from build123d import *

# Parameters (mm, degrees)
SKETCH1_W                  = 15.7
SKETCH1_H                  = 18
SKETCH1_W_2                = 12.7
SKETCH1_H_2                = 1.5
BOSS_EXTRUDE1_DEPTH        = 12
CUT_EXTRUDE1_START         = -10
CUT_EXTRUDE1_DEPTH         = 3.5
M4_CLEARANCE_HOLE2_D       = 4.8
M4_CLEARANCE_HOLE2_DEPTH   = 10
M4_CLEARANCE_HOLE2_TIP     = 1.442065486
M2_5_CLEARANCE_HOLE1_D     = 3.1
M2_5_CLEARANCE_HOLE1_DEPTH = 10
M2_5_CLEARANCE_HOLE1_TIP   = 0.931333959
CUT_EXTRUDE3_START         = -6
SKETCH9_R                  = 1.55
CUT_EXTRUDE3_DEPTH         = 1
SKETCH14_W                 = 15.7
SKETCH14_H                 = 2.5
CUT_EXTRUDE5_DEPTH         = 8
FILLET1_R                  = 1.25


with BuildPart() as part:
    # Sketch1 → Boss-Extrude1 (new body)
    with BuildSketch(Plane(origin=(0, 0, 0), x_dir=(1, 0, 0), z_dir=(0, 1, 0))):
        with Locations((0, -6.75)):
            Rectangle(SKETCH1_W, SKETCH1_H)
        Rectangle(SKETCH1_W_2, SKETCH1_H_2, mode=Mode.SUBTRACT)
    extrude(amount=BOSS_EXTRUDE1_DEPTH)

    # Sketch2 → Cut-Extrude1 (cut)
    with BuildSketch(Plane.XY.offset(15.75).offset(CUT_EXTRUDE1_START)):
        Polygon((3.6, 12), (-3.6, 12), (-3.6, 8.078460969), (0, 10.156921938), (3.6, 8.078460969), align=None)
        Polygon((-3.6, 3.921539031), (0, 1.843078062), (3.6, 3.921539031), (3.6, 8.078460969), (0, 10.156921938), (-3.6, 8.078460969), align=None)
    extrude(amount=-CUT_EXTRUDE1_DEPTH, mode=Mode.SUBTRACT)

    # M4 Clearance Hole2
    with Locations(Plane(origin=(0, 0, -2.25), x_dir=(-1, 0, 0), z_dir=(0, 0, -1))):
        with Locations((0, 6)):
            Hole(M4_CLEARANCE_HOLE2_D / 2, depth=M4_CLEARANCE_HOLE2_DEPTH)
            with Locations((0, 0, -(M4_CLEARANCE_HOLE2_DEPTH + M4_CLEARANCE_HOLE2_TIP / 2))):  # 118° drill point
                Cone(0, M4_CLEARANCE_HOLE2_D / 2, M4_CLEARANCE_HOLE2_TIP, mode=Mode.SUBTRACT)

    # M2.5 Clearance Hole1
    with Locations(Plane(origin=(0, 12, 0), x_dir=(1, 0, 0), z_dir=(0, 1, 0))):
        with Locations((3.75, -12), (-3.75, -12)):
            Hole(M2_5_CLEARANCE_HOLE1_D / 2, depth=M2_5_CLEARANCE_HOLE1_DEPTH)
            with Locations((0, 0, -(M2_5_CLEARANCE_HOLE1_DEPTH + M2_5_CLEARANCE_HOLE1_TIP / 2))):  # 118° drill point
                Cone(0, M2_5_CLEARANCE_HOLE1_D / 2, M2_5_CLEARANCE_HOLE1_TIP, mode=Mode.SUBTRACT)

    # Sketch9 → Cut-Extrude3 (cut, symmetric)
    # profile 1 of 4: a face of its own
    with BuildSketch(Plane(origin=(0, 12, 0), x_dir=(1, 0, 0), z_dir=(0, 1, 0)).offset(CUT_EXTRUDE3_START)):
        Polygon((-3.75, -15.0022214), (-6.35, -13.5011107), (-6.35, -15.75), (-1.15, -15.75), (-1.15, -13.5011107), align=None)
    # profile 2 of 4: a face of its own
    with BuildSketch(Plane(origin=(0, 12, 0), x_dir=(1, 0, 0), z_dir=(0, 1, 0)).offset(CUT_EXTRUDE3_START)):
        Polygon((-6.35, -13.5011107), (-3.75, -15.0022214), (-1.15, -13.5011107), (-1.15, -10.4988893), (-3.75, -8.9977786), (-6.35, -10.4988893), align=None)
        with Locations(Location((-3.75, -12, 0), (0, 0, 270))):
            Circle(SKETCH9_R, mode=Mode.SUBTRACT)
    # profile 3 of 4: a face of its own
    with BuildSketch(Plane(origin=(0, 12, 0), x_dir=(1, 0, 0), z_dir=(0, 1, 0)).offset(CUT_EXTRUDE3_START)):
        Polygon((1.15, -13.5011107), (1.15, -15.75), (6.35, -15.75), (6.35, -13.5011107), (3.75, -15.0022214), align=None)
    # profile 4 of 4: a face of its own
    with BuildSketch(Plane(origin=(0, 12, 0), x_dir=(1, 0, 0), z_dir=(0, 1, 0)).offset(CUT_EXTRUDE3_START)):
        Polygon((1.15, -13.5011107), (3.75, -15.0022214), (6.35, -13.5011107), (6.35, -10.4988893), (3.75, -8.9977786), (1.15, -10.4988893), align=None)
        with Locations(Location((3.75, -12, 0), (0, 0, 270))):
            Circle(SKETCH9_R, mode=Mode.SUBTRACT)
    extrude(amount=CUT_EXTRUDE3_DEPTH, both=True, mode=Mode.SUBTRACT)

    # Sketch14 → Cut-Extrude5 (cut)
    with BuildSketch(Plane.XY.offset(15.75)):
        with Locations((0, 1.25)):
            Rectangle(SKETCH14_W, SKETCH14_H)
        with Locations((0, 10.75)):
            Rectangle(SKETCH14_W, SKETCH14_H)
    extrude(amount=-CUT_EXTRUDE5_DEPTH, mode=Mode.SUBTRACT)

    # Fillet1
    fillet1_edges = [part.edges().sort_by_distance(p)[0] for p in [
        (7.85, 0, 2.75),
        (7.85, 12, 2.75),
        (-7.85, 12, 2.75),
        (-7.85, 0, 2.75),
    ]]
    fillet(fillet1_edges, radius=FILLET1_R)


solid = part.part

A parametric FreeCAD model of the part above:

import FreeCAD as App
import Part
import Sketcher
Q = App.Units.Quantity


def edges_at(feature, points):
    """Names of the edges that pass closest to the given points."""
    edges = feature.Shape.Edges
    near = lambda p: min(range(len(edges)), key=lambda i: edges[i].distToShape(Part.Vertex(*p))[0])
    return sorted({f"Edge{near(p) + 1}" for p in points})


def add_polygon(sketch, points):
    """Adds a closed chain of lines whose ends are joined by coincident constraints."""
    first, n = sketch.GeometryCount, len(points)
    for a, b in zip(points, points[1:] + points[:1]):
        sketch.addGeometry(Part.LineSegment(App.Vector(*a, 0), App.Vector(*b, 0)), False)
    for i in range(n):
        sketch.addConstraint(Sketcher.Constraint("Coincident", first + i, 2, first + (i + 1) % n, 1))

doc = App.newDocument("Part")
params = doc.addObject("Spreadsheet::Sheet", "Params")
for row, (alias, value) in enumerate([
    ("sketch1_height", "18 mm"),
    ("sketch1_width", "15.7 mm"),
    ("sketch1_width2", "12.7 mm"),
    ("sketch1_height2", "1.5 mm"),
    ("pad1_length", "12 mm"),
    ("sketch2_width", "7.2 mm"),
    ("pocket1_length", "3.5 mm"),
    ("sketch3_diameter", "4.8 mm"),
    ("hole_diameter", "4.8 mm"),
    ("hole_depth", "10 mm"),
    ("sketch4_diameter", "3.1 mm"),
    ("hole2_diameter", "3.1 mm"),
    ("hole2_depth", "10 mm"),
    ("sketch5_diameter", "3.1 mm"),
    ("sketch5_width", "5.2 mm"),
    ("pocket2_length", "2 mm"),
    ("sketch6_width", "15.7 mm"),
    ("sketch6_height", "2.5 mm"),
    ("pocket3_length", "8 mm"),
    ("fillet_radius", "1.25 mm"),
], start=1):
    params.set(f"A{row}", alias)
    params.set(f"B{row}", "=" + value)
    params.setAlias(f"B{row}", alias)

body = doc.addObject("PartDesign::Body", "Body")

sketch1 = body.newObject("Sketcher::SketchObject", "Sketch")
sketch1.AttachmentSupport = (doc.getObject("XZ_Plane"), [""])
sketch1.MapMode = "FlatFace"
add_polygon(sketch1, [(-7.8, -2.2), (-7.8, 15.8), (7.8, 15.8), (7.8, -2.2)])
add_polygon(sketch1, [(6.3, 0.8), (-6.3, 0.8), (-6.3, -0.8), (6.3, -0.8)])
sketch1.addConstraint(Sketcher.Constraint("Vertical", 0))
sketch1.addConstraint(Sketcher.Constraint("Horizontal", 1))
sketch1.addConstraint(Sketcher.Constraint("Vertical", 2))
sketch1.addConstraint(Sketcher.Constraint("Horizontal", 3))
sketch1.addConstraint(Sketcher.Constraint("Horizontal", 4))
sketch1.addConstraint(Sketcher.Constraint("Vertical", 5))
sketch1.addConstraint(Sketcher.Constraint("Horizontal", 6))
sketch1.addConstraint(Sketcher.Constraint("Vertical", 7))
sketch1.addConstraint(Sketcher.Constraint("Symmetric", 4, 2, 6, 2, -1, 1))
sketch1.addConstraint(Sketcher.Constraint("DistanceY", 0, 1, 0, 2, Q("18 mm")))
sketch1.addConstraint(Sketcher.Constraint("DistanceX", 1, 1, 1, 2, Q("15.7 mm")))
sketch1.addConstraint(Sketcher.Constraint("DistanceX", 4, 2, 4, 1, Q("12.7 mm")))
sketch1.addConstraint(Sketcher.Constraint("DistanceY", 5, 2, 5, 1, Q("1.5 mm")))
sketch1.addConstraint(Sketcher.Constraint("DistanceY", 3, 2, 4, 2, Q("3 mm")))
sketch1.addConstraint(Sketcher.Constraint("DistanceX", 3, 2, 4, 2, Q("1.5 mm")))
sketch1.setExpression("Constraints[17]", "Params.sketch1_height")
sketch1.setExpression("Constraints[18]", "Params.sketch1_width")
sketch1.setExpression("Constraints[19]", "Params.sketch1_width2")
sketch1.setExpression("Constraints[20]", "Params.sketch1_height2")
pad1 = body.newObject("PartDesign::Pad", "Pad")
pad1.Profile = sketch1
pad1.setExpression("Length", "Params.pad1_length")
pad1.Reversed = True

sketch2 = body.newObject("Sketcher::SketchObject", "Sketch001")
sketch2.AttachmentSupport = (doc.getObject("XY_Plane"), [""])
sketch2.MapMode = "FlatFace"
sketch2.AttachmentOffset = App.Placement(App.Vector(0, 0, 5.75), App.Rotation())
add_polygon(sketch2, [(3.6, 12), (-3.6, 12), (-3.6, 3.9), (0, 1.8), (3.6, 3.9)])
sketch2.addConstraint(Sketcher.Constraint("Horizontal", 0))
sketch2.addConstraint(Sketcher.Constraint("Vertical", 1))
sketch2.addConstraint(Sketcher.Constraint("Vertical", 4))
sketch2.addConstraint(Sketcher.Constraint("Symmetric", 1, 2, 3, 2, -2))
sketch2.addConstraint(Sketcher.Constraint("PointOnObject", 2, 2, -2))
sketch2.addConstraint(Sketcher.Constraint("Angle", 2, Q("-30 deg")))
sketch2.addConstraint(Sketcher.Constraint("DistanceX", 0, 2, 0, 1, Q("7.2 mm")))
sketch2.addConstraint(Sketcher.Constraint("DistanceY", -1, 1, 0, 2, Q("12 mm")))
sketch2.addConstraint(Sketcher.Constraint("DistanceY", 1, 2, 1, 1, Q("8.078461 mm")))
sketch2.setExpression("Constraints[11]", "Params.sketch2_width")
pocket1 = body.newObject("PartDesign::Pocket", "Pocket")
pocket1.Profile = sketch2
pocket1.setExpression("Length", "Params.pocket1_length")

sketch3 = body.newObject("Sketcher::SketchObject", "Sketch002")
sketch3.AttachmentSupport = (doc.getObject("XY_Plane"), [""])
sketch3.MapMode = "FlatFace"
sketch3.AttachmentOffset = App.Placement(App.Vector(0, 0, -2.25), App.Rotation())
sketch3.addGeometry(Part.Circle(App.Vector(0, 6, 0), App.Vector(0, 0, 1), 2.4), False)
sketch3.addConstraint(Sketcher.Constraint("PointOnObject", 0, 3, -2))
sketch3.addConstraint(Sketcher.Constraint("Diameter", 0, Q("4.8 mm")))
sketch3.addConstraint(Sketcher.Constraint("DistanceY", -1, 1, 0, 3, Q("6 mm")))
sketch3.setExpression("Constraints[1]", "Params.sketch3_diameter")
doc.recompute()
hole = body.newObject("PartDesign::Hole", "Hole")
hole.Profile = sketch3
hole.ThreadType = "None"
hole.setExpression("Diameter", "Params.hole_diameter")
hole.DepthType = "Dimension"
hole.setExpression("Depth", "Params.hole_depth")
hole.DrillPoint = "Angled"
hole.DrillPointAngle = 118
hole.Reversed = True

sketch4 = body.newObject("Sketcher::SketchObject", "Sketch003")
sketch4.AttachmentSupport = (doc.getObject("XZ_Plane"), [""])
sketch4.MapMode = "FlatFace"
sketch4.AttachmentOffset = App.Placement(App.Vector(0, 0, -12), App.Rotation())
sketch4.addGeometry(Part.Circle(App.Vector(3.8, 12, 0), App.Vector(0, 0, 1), 1.6), False)
sketch4.addGeometry(Part.Circle(App.Vector(-3.8, 12, 0), App.Vector(0, 0, 1), 1.6), False)
sketch4.addConstraint(Sketcher.Constraint("Equal", 0, 1))
sketch4.addConstraint(Sketcher.Constraint("Symmetric", 0, 3, 1, 3, -2))
sketch4.addConstraint(Sketcher.Constraint("Diameter", 0, Q("3.1 mm")))
sketch4.addConstraint(Sketcher.Constraint("DistanceY", -1, 1, 0, 3, Q("12 mm")))
sketch4.addConstraint(Sketcher.Constraint("DistanceX", 1, 3, 0, 3, Q("7.5 mm")))
sketch4.setExpression("Constraints[2]", "Params.sketch4_diameter")
doc.recompute()
hole2 = body.newObject("PartDesign::Hole", "Hole001")
hole2.Profile = sketch4
hole2.ThreadType = "None"
hole2.setExpression("Diameter", "Params.hole2_diameter")
hole2.DepthType = "Dimension"
hole2.setExpression("Depth", "Params.hole2_depth")
hole2.DrillPoint = "Angled"
hole2.DrillPointAngle = 118
hole2.Reversed = True

sketch5 = body.newObject("Sketcher::SketchObject", "Sketch004")
sketch5.AttachmentSupport = (doc.getObject("XZ_Plane"), [""])
sketch5.MapMode = "FlatFace"
sketch5.AttachmentOffset = App.Placement(App.Vector(0, 0, -6), App.Rotation())
add_polygon(sketch5, [(-6.3, 15.8), (-1.1, 15.8), (-1.1, 10.5), (-3.8, 9), (-6.3, 10.5)])
sketch5.addGeometry(Part.Circle(App.Vector(-3.8, 12, 0), App.Vector(0, 0, 1), 1.6), False)
add_polygon(sketch5, [(1.1, 15.8), (6.3, 15.8), (6.3, 10.5), (3.8, 9), (1.1, 10.5)])
sketch5.addGeometry(Part.Circle(App.Vector(3.8, 12, 0), App.Vector(0, 0, 1), 1.6), False)
sketch5.addConstraint(Sketcher.Constraint("Horizontal", 0))
sketch5.addConstraint(Sketcher.Constraint("Vertical", 1))
sketch5.addConstraint(Sketcher.Constraint("Vertical", 4))
sketch5.addConstraint(Sketcher.Constraint("Horizontal", 6))
sketch5.addConstraint(Sketcher.Constraint("Vertical", 7))
sketch5.addConstraint(Sketcher.Constraint("Vertical", 10))
sketch5.addConstraint(Sketcher.Constraint("Equal", 5, 11))
sketch5.addConstraint(Sketcher.Constraint("Symmetric", 5, 3, 11, 3, -2))
sketch5.addConstraint(Sketcher.Constraint("Symmetric", 4, 2, 6, 2, -2))
sketch5.addConstraint(Sketcher.Constraint("Symmetric", 2, 2, 8, 2, -2))
sketch5.addConstraint(Sketcher.Constraint("Symmetric", 1, 2, 9, 2, -2))
sketch5.addConstraint(Sketcher.Constraint("Parallel", 2, 8))
sketch5.addConstraint(Sketcher.Constraint("Parallel", 3, 9))
sketch5.addConstraint(Sketcher.Constraint("Horizontal", 1, 2, 3, 2))
sketch5.addConstraint(Sketcher.Constraint("Vertical", 5, 3, 2, 2))
sketch5.addConstraint(Sketcher.Constraint("Diameter", 5, Q("3.1 mm")))
sketch5.addConstraint(Sketcher.Constraint("Angle", 2, Q("-150 deg")))
sketch5.addConstraint(Sketcher.Constraint("DistanceX", 0, 1, 0, 2, Q("5.2 mm")))
sketch5.addConstraint(Sketcher.Constraint("DistanceY", -1, 1, 5, 3, Q("12 mm")))
sketch5.addConstraint(Sketcher.Constraint("DistanceX", 5, 3, 11, 3, Q("7.5 mm")))
sketch5.addConstraint(Sketcher.Constraint("DistanceY", -1, 1, 0, 2, Q("15.75 mm")))
sketch5.addConstraint(Sketcher.Constraint("DistanceY", 1, 2, 1, 1, Q("5.251111 mm")))
sketch5.setExpression("Constraints[25]", "Params.sketch5_diameter")
sketch5.setExpression("Constraints[27]", "Params.sketch5_width")
pocket2 = body.newObject("PartDesign::Pocket", "Pocket001")
pocket2.Profile = sketch5
pocket2.setExpression("Length", "Params.pocket2_length")
pocket2.Midplane = True

sketch6 = body.newObject("Sketcher::SketchObject", "Sketch005")
sketch6.AttachmentSupport = (doc.getObject("XY_Plane"), [""])
sketch6.MapMode = "FlatFace"
sketch6.AttachmentOffset = App.Placement(App.Vector(0, 0, 15.75), App.Rotation())
add_polygon(sketch6, [(-7.8, 2.5), (-7.8, 0), (7.8, 0), (7.8, 2.5)])
add_polygon(sketch6, [(-7.8, 12), (-7.8, 9.5), (7.8, 9.5), (7.8, 12)])
sketch6.addConstraint(Sketcher.Constraint("Vertical", 0))
sketch6.addConstraint(Sketcher.Constraint("Horizontal", 1))
sketch6.addConstraint(Sketcher.Constraint("Vertical", 2))
sketch6.addConstraint(Sketcher.Constraint("Horizontal", 3))
sketch6.addConstraint(Sketcher.Constraint("Vertical", 4))
sketch6.addConstraint(Sketcher.Constraint("Horizontal", 5))
sketch6.addConstraint(Sketcher.Constraint("Vertical", 6))
sketch6.addConstraint(Sketcher.Constraint("Horizontal", 7))
sketch6.addConstraint(Sketcher.Constraint("Symmetric", 0, 2, 1, 2, -1, 1))
sketch6.addConstraint(Sketcher.Constraint("Vertical", 3, 2, 4, 2))
sketch6.addConstraint(Sketcher.Constraint("Vertical", 2, 2, 5, 2))
sketch6.addConstraint(Sketcher.Constraint("Equal", 2, 4))
sketch6.addConstraint(Sketcher.Constraint("DistanceX", 1, 1, 1, 2, Q("15.7 mm")))
sketch6.addConstraint(Sketcher.Constraint("DistanceY", 0, 2, 0, 1, Q("2.5 mm")))
sketch6.addConstraint(Sketcher.Constraint("DistanceY", -1, 1, 6, 2, Q("12 mm")))
sketch6.setExpression("Constraints[20]", "Params.sketch6_width")
sketch6.setExpression("Constraints[21]", "Params.sketch6_height")
pocket3 = body.newObject("PartDesign::Pocket", "Pocket002")
pocket3.Profile = sketch6
pocket3.setExpression("Length", "Params.pocket3_length")
doc.recompute()

fillet = body.newObject("PartDesign::Fillet", "Fillet")
fillet.Base = (pocket3, edges_at(pocket3, [
    (7.85, 0, 2.75),
    (7.85, 12, 2.75),
    (-7.85, 12, 2.75),
    (-7.85, 0, 2.75),
]))
fillet.setExpression("Radius", "Params.fillet_radius")

doc.recompute()
